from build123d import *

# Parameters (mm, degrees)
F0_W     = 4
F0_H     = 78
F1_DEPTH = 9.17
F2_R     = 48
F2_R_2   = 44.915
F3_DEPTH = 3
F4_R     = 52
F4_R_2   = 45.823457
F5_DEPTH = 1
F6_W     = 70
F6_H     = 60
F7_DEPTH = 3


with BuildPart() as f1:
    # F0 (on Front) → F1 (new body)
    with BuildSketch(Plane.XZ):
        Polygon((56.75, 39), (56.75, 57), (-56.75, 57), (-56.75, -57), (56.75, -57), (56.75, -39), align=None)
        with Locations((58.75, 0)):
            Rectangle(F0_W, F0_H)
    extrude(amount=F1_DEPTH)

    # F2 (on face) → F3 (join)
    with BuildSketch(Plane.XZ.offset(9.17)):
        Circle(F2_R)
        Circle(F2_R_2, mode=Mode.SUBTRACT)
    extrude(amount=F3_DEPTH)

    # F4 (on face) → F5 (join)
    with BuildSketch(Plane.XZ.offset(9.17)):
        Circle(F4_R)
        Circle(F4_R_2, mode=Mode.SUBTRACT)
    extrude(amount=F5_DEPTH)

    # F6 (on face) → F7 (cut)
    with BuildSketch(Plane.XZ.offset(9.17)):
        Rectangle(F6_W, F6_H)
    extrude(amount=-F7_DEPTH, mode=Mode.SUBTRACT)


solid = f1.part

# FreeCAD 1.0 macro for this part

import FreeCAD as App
import Part
import Sketcher

V = App.Vector


def add_polygon(sketch, points):
    """Adds a closed chain of lines whose ends are joined by coincident constraints."""
    first, n = sketch.GeometryCount, len(points)
    for a, b in zip(points, points[1:] + points[:1]):
        sketch.addGeometry(Part.LineSegment(App.Vector(*a, 0), App.Vector(*b, 0)), False)
    for i in range(n):
        sketch.addConstraint(Sketcher.Constraint("Coincident", first + i, 2, first + (i + 1) % n, 1))

doc = App.newDocument("Part")
body = doc.addObject("PartDesign::Body", "Body")

sketch1 = body.newObject("Sketcher::SketchObject", "Sketch")
sketch1.AttachmentSupport = (doc.getObject("XZ_Plane"), [""])
sketch1.MapMode = "FlatFace"
add_polygon(sketch1, [(56.8, 57), (-56.8, 57), (-56.8, -57), (56.8, -57), (56.8, -39), (60.8, -39), (60.8, 39), (56.8, 39)])
sketch1.addConstraint([
    Sketcher.Constraint("Horizontal", 0),
    Sketcher.Constraint("Vertical", 1),
    Sketcher.Constraint("Horizontal", 2),
    Sketcher.Constraint("Vertical", 3),
    Sketcher.Constraint("Horizontal", 4),
    Sketcher.Constraint("Vertical", 5),
    Sketcher.Constraint("Horizontal", 6),
    Sketcher.Constraint("Vertical", 7),
    Sketcher.Constraint("Symmetric", 0, 2, 2, 2, -1, 1),
    Sketcher.Constraint("Symmetric", 3, 2, 6, 2, -1),
    Sketcher.Constraint("DistanceX", 4, 1, 4, 2, 4.0),
    Sketcher.Constraint("DistanceY", 1, 2, 1, 1, 114.0),
    Sketcher.Constraint("DistanceY", 3, 1, 3, 2, 18.0),
    Sketcher.Constraint("DistanceX", 0, 2, 0, 1, 113.5),
])
pad1 = body.newObject("PartDesign::Pad", "Pad")
pad1.Profile = sketch1
pad1.Length = 9.17

sketch2 = body.newObject("Sketcher::SketchObject", "Sketch001")
sketch2.AttachmentSupport = (doc.getObject("XZ_Plane"), [""])
sketch2.MapMode = "FlatFace"
sketch2.AttachmentOffset = App.Placement(V(0, 0, 9.17), App.Rotation())
sketch2.addGeometry([
    Part.Circle(V(0, 0, 0), V(0, 0, 1), 48),
    Part.Circle(V(0, 0, 0), V(0, 0, 1), 45),
], False)
sketch2.addConstraint([
    Sketcher.Constraint("Coincident", 0, 3, -1, 1),
    Sketcher.Constraint("Coincident", 1, 3, -1, 1),
    Sketcher.Constraint("Diameter", 0, 96.0),
    Sketcher.Constraint("Diameter", 1, 89.83),
])
pad2 = body.newObject("PartDesign::Pad", "Pad001")
pad2.Profile = sketch2
pad2.Length = 3

sketch3 = body.newObject("Sketcher::SketchObject", "Sketch002")
sketch3.AttachmentSupport = (doc.getObject("XZ_Plane"), [""])
sketch3.MapMode = "FlatFace"
sketch3.AttachmentOffset = App.Placement(V(0, 0, 9.17), App.Rotation())
sketch3.addGeometry([
    Part.Circle(V(0, 0, 0), V(0, 0, 1), 52),
    Part.Circle(V(0, 0, 0), V(0, 0, 1), 46),
], False)
sketch3.addConstraint([
    Sketcher.Constraint("Coincident", 0, 3, -1, 1),
    Sketcher.Constraint("Coincident", 1, 3, -1, 1),
    Sketcher.Constraint("Diameter", 0, 104.0),
    Sketcher.Constraint("Diameter", 1, 91.646914),
])
pad3 = body.newObject("PartDesign::Pad", "Pad002")
pad3.Profile = sketch3
pad3.Length = 1

sketch4 = body.newObject("Sketcher::SketchObject", "Sketch003")
sketch4.AttachmentSupport = (doc.getObject("XZ_Plane"), [""])
sketch4.MapMode = "FlatFace"
sketch4.AttachmentOffset = App.Placement(V(0, 0, 9.17), App.Rotation())
add_polygon(sketch4, [(-35, 30), (-35, -30), (35, -30), (35, 30)])
sketch4.addConstraint([
    Sketcher.Constraint("Vertical", 0),
    Sketcher.Constraint("Horizontal", 1),
    Sketcher.Constraint("Vertical", 2),
    Sketcher.Constraint("Horizontal", 3),
    Sketcher.Constraint("Symmetric", 0, 2, 2, 2, -1, 1),
    Sketcher.Constraint("DistanceX", 1, 1, 1, 2, 70.0),
    Sketcher.Constraint("DistanceY", 0, 2, 0, 1, 60.0),
])
pocket1 = body.newObject("PartDesign::Pocket", "Pocket")
pocket1.Profile = sketch4
pocket1.Length = 3

doc.recompute()
